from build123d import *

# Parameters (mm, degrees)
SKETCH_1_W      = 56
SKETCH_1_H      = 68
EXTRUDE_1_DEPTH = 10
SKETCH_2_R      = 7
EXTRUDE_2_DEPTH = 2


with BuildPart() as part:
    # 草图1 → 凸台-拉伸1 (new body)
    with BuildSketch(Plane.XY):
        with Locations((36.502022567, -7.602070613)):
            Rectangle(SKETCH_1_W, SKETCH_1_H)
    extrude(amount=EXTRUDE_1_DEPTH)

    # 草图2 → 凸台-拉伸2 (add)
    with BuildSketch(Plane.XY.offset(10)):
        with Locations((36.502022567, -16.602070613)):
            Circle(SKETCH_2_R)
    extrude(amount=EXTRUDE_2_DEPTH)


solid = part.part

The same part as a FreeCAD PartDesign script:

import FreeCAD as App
import Part
import Sketcher
Q = App.Units.Quantity


def add_polygon(sketch, points):
    """Adds a closed chain of lines whose ends are joined by coincident constraints."""
    first, n = sketch.GeometryCount, len(points)
    for a, b in zip(points, points[1:] + points[:1]):
        sketch.addGeometry(Part.LineSegment(App.Vector(*a, 0), App.Vector(*b, 0)), False)
    for i in range(n):
        sketch.addConstraint(Sketcher.Constraint("Coincident", first + i, 2, first + (i + 1) % n, 1))

doc = App.newDocument("Part")
body = doc.addObject("PartDesign::Body", "Body")

sketch1 = body.newObject("Sketcher::SketchObject", "Sketch")
sketch1.AttachmentSupport = (doc.getObject("XY_Plane"), [""])
sketch1.MapMode = "FlatFace"
add_polygon(sketch1, [(9, 26), (9, -42), (65, -42), (65, 26)])
sketch1.addConstraint([
    Sketcher.Constraint("Vertical", 0),
    Sketcher.Constraint("Horizontal", 1),
    Sketcher.Constraint("Vertical", 2),
    Sketcher.Constraint("Horizontal", 3),
    Sketcher.Constraint("DistanceX", 1, 1, 1, 2, Q("56 mm")),
    Sketcher.Constraint("DistanceY", 0, 2, 0, 1, Q("68 mm")),
    Sketcher.Constraint("DistanceY", 0, 2, -1, 1, Q("41.602071 mm")),
    Sketcher.Constraint("DistanceX", -1, 1, 0, 2, Q("8.502023 mm")),
])
pad1 = body.newObject("PartDesign::Pad", "Pad")
pad1.Profile = sketch1
pad1.Length = 10

sketch2 = body.newObject("Sketcher::SketchObject", "Sketch001")
sketch2.AttachmentSupport = (doc.getObject("XY_Plane"), [""])
sketch2.MapMode = "FlatFace"
sketch2.AttachmentOffset = App.Placement(App.Vector(0, 0, 10), App.Rotation())
sketch2.addGeometry(Part.Circle(App.Vector(37, -17, 0), App.Vector(0, 0, 1), 7), False)
sketch2.addConstraint([
    Sketcher.Constraint("Diameter", 0, Q("14 mm")),
    Sketcher.Constraint("DistanceY", 0, 3, -1, 1, Q("16.602071 mm")),
    Sketcher.Constraint("DistanceX", -1, 1, 0, 3, Q("36.502023 mm")),
])
pad2 = body.newObject("PartDesign::Pad", "Pad001")
pad2.Profile = sketch2
pad2.Length = 2

doc.recompute()
